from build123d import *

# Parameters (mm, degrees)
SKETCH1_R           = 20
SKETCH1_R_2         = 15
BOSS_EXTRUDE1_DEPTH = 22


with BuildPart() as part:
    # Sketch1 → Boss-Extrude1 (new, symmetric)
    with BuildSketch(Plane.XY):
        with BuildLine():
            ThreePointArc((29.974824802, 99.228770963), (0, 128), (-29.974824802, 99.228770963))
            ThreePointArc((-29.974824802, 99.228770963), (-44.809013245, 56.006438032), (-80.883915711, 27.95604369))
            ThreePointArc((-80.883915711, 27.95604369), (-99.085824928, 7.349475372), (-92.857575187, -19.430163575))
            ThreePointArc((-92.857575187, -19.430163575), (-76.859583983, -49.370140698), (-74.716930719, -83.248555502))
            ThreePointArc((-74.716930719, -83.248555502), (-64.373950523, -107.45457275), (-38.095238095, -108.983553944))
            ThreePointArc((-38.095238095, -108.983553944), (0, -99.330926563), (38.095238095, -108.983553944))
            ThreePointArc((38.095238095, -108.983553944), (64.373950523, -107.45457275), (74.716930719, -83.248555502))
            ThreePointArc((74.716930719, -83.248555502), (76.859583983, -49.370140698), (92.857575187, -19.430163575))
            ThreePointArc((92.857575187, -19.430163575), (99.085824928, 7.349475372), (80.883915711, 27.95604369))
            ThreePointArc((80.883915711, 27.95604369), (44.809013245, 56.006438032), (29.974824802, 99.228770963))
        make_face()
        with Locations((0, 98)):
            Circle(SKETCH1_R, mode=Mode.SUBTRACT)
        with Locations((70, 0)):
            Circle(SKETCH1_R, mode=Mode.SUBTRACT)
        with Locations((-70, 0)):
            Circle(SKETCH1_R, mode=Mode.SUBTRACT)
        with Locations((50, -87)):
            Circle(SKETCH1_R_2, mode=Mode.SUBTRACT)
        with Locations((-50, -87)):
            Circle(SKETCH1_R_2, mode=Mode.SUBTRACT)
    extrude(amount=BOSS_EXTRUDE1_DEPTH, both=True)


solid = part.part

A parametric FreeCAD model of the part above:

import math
import FreeCAD as App
import Part
import Sketcher
from FreeCAD import Vector

doc = App.newDocument("Part")
body = doc.addObject("PartDesign::Body", "Body")

sketch1 = body.newObject("Sketcher::SketchObject", "Sketch")
sketch1.AttachmentSupport = (doc.getObject("XY_Plane"), [""])
sketch1.MapMode = "FlatFace"
sketch1.addGeometry(Part.ArcOfCircle(Part.Circle(Vector(0, 98, 0), Vector(0, 0, 1), 30), math.radians(2), math.radians(178)), False)
sketch1.addGeometry(Part.ArcOfCircle(Part.Circle(Vector(-110, 103, 0), Vector(0, 0, 1), 80), math.radians(-69), math.radians(-2)), False)
sketch1.addGeometry(Part.ArcOfCircle(Part.Circle(Vector(-70, 0, 0), Vector(0, 0, 1), 30), math.radians(111), math.radians(220)), False)
sketch1.addGeometry(Part.ArcOfCircle(Part.Circle(Vector(-154, -71, 0), Vector(0, 0, 1), 80), math.radians(-9), math.radians(40)), False)
sketch1.addGeometry(Part.ArcOfCircle(Part.Circle(Vector(-50, -87, 0), Vector(0, 0, 1), 25), math.radians(171), math.radians(298)), False)
sketch1.addGeometry(Part.ArcOfCircle(Part.Circle(Vector(0, -179, 0), Vector(0, 0, 1), 80), math.radians(62), math.radians(118)), False)
sketch1.addGeometry(Part.ArcOfCircle(Part.Circle(Vector(50, -87, 0), Vector(0, 0, 1), 25), math.radians(-118), math.radians(9)), False)
sketch1.addGeometry(Part.ArcOfCircle(Part.Circle(Vector(154, -71, 0), Vector(0, 0, 1), 80), math.radians(140), math.radians(189)), False)
sketch1.addGeometry(Part.ArcOfCircle(Part.Circle(Vector(70, 0, 0), Vector(0, 0, 1), 30), math.radians(-40), math.radians(69)), False)
sketch1.addGeometry(Part.ArcOfCircle(Part.Circle(Vector(110, 103, 0), Vector(0, 0, 1), 80), math.radians(-178), math.radians(-111)), False)
sketch1.addGeometry(Part.Circle(Vector(-50, -87, 0), Vector(0, 0, 1), 15), False)
sketch1.addGeometry(Part.Circle(Vector(-70, 0, 0), Vector(0, 0, 1), 20), False)
sketch1.addGeometry(Part.Circle(Vector(50, -87, 0), Vector(0, 0, 1), 15), False)
sketch1.addGeometry(Part.Circle(Vector(70, 0, 0), Vector(0, 0, 1), 20), False)
sketch1.addGeometry(Part.Circle(Vector(0, 98, 0), Vector(0, 0, 1), 20), False)
sketch1.addConstraint(Sketcher.Constraint("Tangent", 0, 2, 1, 2))
sketch1.addConstraint(Sketcher.Constraint("Tangent", 1, 1, 2, 1))
sketch1.addConstraint(Sketcher.Constraint("Tangent", 2, 2, 3, 2))
sketch1.addConstraint(Sketcher.Constraint("Tangent", 3, 1, 4, 1))
sketch1.addConstraint(Sketcher.Constraint("Tangent", 4, 2, 5, 2))
sketch1.addConstraint(Sketcher.Constraint("Tangent", 5, 1, 6, 1))
sketch1.addConstraint(Sketcher.Constraint("Tangent", 6, 2, 7, 2))
sketch1.addConstraint(Sketcher.Constraint("Tangent", 7, 1, 8, 1))
sketch1.addConstraint(Sketcher.Constraint("Tangent", 8, 2, 9, 2))
sketch1.addConstraint(Sketcher.Constraint("Tangent", 9, 1, 0, 1))
sketch1.addConstraint(Sketcher.Constraint("Coincident", 10, 3, 4, 3))
sketch1.addConstraint(Sketcher.Constraint("Coincident", 11, 3, 2, 3))
sketch1.addConstraint(Sketcher.Constraint("Coincident", 12, 3, 6, 3))
sketch1.addConstraint(Sketcher.Constraint("Coincident", 13, 3, 8, 3))
sketch1.addConstraint(Sketcher.Constraint("Coincident", 14, 3, 0, 3))
sketch1.addConstraint(Sketcher.Constraint("Equal", 0, 2))
sketch1.addConstraint(Sketcher.Constraint("Equal", 1, 3))
sketch1.addConstraint(Sketcher.Constraint("Equal", 3, 5))
sketch1.addConstraint(Sketcher.Constraint("Equal", 4, 6))
sketch1.addConstraint(Sketcher.Constraint("Equal", 5, 7))
sketch1.addConstraint(Sketcher.Constraint("Equal", 2, 8))
sketch1.addConstraint(Sketcher.Constraint("Equal", 7, 9))
sketch1.addConstraint(Sketcher.Constraint("Equal", 10, 12))
sketch1.addConstraint(Sketcher.Constraint("Equal", 11, 13))
sketch1.addConstraint(Sketcher.Constraint("Equal", 13, 14))
sketch1.addConstraint(Sketcher.Constraint("Symmetric", 2, 3, 8, 3, -1, 1))
sketch1.addConstraint(Sketcher.Constraint("Symmetric", 4, 3, 6, 3, -2))
sketch1.addConstraint(Sketcher.Constraint("Symmetric", 1, 3, 9, 3, -2))
sketch1.addConstraint(Sketcher.Constraint("Diameter", 10, 30.0))
sketch1.addConstraint(Sketcher.Constraint("Diameter", 11, 40.0))
sketch1.addConstraint(Sketcher.Constraint("Radius", 0, 30.0))
sketch1.addConstraint(Sketcher.Constraint("Radius", 1, 80.0))
sketch1.addConstraint(Sketcher.Constraint("Radius", 4, 25.0))
sketch1.addConstraint(Sketcher.Constraint("DistanceY", -1, 1, 0, 3, 98.0))
sketch1.addConstraint(Sketcher.Constraint("DistanceX", 2, 3, -1, 1, 70.0))
sketch1.addConstraint(Sketcher.Constraint("DistanceX", 4, 3, -1, 1, 50.0))
sketch1.addConstraint(Sketcher.Constraint("DistanceY", 4, 3, -1, 1, 87.0))
pad1 = body.newObject("PartDesign::Pad", "Pad")
pad1.Profile = sketch1
pad1.Length = 44
pad1.Midplane = True

doc.recompute()
